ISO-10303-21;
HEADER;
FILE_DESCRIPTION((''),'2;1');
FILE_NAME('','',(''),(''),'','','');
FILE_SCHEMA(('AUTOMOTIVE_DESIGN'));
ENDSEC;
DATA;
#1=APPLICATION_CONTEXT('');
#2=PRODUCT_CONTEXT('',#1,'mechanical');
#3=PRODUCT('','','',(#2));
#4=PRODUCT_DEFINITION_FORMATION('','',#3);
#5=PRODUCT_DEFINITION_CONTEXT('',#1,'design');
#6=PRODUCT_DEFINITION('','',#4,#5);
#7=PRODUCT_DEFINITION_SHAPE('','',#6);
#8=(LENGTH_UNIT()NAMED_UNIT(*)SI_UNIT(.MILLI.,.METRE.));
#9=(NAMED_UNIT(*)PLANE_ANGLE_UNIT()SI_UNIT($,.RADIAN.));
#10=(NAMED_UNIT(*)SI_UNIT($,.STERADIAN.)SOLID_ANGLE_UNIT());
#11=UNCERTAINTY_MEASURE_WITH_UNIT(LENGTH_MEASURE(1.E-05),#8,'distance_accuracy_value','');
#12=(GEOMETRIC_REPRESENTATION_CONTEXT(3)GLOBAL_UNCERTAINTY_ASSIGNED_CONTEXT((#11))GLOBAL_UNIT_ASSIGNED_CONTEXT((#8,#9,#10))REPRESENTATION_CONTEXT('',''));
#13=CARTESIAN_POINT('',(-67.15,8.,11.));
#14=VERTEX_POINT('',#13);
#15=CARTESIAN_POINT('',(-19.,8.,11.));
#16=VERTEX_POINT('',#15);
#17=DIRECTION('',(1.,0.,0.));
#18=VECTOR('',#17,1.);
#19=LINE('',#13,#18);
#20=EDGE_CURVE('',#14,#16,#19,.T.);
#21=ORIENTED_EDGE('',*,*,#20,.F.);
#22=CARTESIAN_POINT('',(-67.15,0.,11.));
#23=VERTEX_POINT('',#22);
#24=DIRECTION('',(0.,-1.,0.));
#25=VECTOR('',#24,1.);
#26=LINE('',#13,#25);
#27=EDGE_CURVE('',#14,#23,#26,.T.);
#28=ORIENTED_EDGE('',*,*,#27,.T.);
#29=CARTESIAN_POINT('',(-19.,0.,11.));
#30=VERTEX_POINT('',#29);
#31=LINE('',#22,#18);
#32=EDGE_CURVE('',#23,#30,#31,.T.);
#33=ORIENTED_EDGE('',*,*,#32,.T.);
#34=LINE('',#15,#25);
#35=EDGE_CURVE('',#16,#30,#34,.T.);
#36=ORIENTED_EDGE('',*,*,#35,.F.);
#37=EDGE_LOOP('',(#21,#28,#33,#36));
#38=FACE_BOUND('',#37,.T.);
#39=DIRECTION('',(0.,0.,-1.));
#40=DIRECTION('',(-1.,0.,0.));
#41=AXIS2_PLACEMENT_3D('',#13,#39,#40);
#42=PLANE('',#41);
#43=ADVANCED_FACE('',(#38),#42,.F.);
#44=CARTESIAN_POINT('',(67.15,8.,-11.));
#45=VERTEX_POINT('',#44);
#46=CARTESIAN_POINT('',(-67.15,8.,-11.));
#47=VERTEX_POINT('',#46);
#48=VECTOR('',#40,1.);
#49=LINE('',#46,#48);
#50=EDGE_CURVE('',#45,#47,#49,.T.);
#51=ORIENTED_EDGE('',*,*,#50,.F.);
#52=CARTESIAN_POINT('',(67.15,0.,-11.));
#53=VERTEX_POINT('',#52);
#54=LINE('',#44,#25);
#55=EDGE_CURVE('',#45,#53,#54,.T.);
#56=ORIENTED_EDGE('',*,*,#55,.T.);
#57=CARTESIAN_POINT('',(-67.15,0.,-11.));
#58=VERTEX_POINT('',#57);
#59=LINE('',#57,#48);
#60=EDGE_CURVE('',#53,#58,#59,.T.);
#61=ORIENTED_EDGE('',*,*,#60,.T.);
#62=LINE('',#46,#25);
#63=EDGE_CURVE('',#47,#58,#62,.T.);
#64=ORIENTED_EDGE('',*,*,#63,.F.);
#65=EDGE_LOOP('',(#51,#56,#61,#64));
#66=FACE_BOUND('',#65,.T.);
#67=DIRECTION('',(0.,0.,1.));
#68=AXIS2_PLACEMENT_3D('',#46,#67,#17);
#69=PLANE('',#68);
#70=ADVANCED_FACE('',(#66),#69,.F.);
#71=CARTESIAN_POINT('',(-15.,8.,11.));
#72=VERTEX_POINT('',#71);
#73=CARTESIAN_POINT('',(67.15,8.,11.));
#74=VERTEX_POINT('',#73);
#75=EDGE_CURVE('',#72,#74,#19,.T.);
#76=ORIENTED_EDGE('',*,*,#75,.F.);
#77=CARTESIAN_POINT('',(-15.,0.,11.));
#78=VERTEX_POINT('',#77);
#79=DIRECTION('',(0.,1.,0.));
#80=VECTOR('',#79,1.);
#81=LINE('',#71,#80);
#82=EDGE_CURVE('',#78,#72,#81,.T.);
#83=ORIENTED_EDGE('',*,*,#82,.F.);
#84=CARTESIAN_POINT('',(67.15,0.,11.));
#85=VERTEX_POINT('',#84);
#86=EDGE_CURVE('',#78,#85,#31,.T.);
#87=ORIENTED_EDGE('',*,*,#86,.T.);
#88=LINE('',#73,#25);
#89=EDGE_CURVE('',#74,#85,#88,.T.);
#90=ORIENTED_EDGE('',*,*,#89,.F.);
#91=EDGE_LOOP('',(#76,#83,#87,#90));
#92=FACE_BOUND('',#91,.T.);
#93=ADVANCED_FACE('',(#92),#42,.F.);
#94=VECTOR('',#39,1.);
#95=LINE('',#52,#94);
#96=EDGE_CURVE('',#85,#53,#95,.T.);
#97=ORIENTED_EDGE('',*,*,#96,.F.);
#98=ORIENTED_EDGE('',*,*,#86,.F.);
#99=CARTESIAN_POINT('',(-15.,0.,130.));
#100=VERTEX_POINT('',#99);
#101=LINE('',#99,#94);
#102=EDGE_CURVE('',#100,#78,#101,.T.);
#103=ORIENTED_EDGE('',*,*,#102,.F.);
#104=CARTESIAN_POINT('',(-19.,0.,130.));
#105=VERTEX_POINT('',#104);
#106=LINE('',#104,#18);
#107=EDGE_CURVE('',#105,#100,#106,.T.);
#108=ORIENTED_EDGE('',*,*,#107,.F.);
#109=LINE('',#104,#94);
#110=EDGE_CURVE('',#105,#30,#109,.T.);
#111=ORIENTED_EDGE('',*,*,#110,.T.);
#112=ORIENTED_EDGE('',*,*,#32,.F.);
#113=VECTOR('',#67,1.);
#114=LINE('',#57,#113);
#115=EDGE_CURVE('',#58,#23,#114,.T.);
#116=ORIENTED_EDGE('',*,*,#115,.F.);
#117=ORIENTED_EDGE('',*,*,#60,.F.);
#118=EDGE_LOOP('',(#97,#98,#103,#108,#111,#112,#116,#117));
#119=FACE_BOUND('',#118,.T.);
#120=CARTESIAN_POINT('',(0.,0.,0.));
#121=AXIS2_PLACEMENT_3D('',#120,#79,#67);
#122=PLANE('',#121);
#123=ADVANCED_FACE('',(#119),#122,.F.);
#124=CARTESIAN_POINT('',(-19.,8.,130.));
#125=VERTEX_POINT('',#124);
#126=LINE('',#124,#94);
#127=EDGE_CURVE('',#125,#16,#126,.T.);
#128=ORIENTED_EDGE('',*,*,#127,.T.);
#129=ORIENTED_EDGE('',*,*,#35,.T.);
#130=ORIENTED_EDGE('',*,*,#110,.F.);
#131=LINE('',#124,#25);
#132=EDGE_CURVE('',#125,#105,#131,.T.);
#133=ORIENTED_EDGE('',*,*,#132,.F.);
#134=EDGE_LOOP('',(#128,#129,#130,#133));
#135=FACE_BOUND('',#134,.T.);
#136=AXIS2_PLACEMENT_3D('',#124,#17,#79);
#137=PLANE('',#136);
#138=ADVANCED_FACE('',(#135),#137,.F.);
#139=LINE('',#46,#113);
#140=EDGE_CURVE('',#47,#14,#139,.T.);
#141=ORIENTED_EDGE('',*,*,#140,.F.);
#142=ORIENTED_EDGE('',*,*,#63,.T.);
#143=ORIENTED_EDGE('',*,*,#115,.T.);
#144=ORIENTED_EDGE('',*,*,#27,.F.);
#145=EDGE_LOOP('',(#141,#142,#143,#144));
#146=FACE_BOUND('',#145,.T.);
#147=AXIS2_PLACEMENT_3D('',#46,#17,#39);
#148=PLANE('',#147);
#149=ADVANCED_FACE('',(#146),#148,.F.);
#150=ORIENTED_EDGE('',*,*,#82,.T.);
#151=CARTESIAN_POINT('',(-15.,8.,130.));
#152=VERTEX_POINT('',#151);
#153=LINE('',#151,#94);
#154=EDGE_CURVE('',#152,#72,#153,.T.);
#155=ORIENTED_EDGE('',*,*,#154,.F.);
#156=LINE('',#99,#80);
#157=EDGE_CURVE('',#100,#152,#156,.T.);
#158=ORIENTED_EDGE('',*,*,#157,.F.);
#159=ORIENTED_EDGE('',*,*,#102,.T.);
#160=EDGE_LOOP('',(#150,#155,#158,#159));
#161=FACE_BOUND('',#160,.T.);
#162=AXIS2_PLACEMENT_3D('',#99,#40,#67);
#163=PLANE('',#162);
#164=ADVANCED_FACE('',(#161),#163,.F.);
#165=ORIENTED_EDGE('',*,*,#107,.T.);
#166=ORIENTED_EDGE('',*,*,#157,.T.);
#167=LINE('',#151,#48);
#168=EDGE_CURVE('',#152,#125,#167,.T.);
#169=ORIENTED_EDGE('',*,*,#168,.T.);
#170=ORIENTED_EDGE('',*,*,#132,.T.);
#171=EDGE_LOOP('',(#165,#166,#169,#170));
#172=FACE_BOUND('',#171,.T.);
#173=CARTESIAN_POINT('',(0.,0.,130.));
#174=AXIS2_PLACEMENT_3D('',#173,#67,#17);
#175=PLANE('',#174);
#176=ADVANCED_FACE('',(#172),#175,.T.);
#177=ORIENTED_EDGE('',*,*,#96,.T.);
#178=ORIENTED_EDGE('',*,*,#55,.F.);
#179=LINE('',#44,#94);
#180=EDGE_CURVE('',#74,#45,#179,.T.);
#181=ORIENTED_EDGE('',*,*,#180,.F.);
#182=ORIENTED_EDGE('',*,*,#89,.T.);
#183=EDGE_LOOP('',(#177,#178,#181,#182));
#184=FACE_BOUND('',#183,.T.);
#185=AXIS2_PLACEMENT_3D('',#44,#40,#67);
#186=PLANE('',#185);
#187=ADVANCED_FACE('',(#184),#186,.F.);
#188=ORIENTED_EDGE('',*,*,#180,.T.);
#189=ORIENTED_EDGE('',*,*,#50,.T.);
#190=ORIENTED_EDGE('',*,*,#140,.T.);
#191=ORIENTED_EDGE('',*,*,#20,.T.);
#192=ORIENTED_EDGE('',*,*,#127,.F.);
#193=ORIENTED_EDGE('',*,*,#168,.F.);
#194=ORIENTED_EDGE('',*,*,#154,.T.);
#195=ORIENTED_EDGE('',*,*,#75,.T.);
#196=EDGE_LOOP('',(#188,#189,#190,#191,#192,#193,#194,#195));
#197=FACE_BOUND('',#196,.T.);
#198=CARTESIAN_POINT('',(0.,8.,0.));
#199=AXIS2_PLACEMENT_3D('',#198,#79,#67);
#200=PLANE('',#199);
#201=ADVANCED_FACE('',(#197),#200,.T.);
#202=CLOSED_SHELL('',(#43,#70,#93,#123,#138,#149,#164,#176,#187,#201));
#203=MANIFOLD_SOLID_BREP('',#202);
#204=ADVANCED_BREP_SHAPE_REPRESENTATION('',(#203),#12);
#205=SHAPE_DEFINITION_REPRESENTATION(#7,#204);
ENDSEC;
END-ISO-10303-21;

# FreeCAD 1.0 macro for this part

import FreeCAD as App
import Part
import Sketcher

V = App.Vector


def add_polygon(sketch, points):
    """Adds a closed chain of lines whose ends are joined by coincident constraints."""
    first, n = sketch.GeometryCount, len(points)
    for a, b in zip(points, points[1:] + points[:1]):
        sketch.addGeometry(Part.LineSegment(App.Vector(*a, 0), App.Vector(*b, 0)), False)
    for i in range(n):
        sketch.addConstraint(Sketcher.Constraint("Coincident", first + i, 2, first + (i + 1) % n, 1))

doc = App.newDocument("Part")
params = doc.addObject("Spreadsheet::Sheet", "Params")
for row, (alias, value) in enumerate([
    ("sketch1_height", "22 mm"),
    ("sketch1_width", "134.3 mm"),
    ("pad1_length", "8 mm"),
    ("sketch2_width", "4 mm"),
    ("sketch2_height", "8 mm"),
    ("pad2_length", "130 mm"),
], start=1):
    params.set(f"A{row}", alias)
    params.set(f"B{row}", "=" + value)
    params.setAlias(f"B{row}", alias)

body = doc.addObject("PartDesign::Body", "Body")

sketch1 = doc.addObject("Sketcher::SketchObject", "Sketch")
body.addObject(sketch1)
sketch1.AttachmentSupport = (doc.XZ_Plane, [""])
sketch1.MapMode = "FlatFace"
add_polygon(sketch1, [(-67, -11), (-67, 11), (67, 11), (67, -11)])
sketch1.addConstraint([
    Sketcher.Constraint("Vertical", 0),
    Sketcher.Constraint("Horizontal", 1),
    Sketcher.Constraint("Vertical", 2),
    Sketcher.Constraint("Horizontal", 3),
    Sketcher.Constraint("Symmetric", 0, 2, 2, 2, -1, 1),
    Sketcher.Constraint("DistanceY", 0, 1, 0, 2, 22.0),
    Sketcher.Constraint("DistanceX", 1, 1, 1, 2, 134.3),
])
sketch1.setExpression("Constraints[9]", "Params.sketch1_height")
sketch1.setExpression("Constraints[10]", "Params.sketch1_width")
pad1 = doc.addObject("PartDesign::Pad", "Pad")
body.addObject(pad1)
pad1.Profile = sketch1
pad1.setExpression("Length", "Params.pad1_length")
pad1.Reversed = True

sketch2 = doc.addObject("Sketcher::SketchObject", "Sketch001")
body.addObject(sketch2)
sketch2.AttachmentSupport = (doc.XY_Plane, [""])
sketch2.MapMode = "FlatFace"
add_polygon(sketch2, [(-19, 8), (-19, 0), (-15, 0), (-15, 8)])
sketch2.addConstraint([
    Sketcher.Constraint("Vertical", 0),
    Sketcher.Constraint("Horizontal", 1),
    Sketcher.Constraint("Vertical", 2),
    Sketcher.Constraint("Horizontal", 3),
    Sketcher.Constraint("PointOnObject", 0, 2, -1),
    Sketcher.Constraint("DistanceX", 1, 1, 1, 2, 4.0),
    Sketcher.Constraint("DistanceY", 0, 2, 0, 1, 8.0),
    Sketcher.Constraint("DistanceX", 0, 2, -1, 1, 19.0),
])
sketch2.setExpression("Constraints[9]", "Params.sketch2_width")
sketch2.setExpression("Constraints[10]", "Params.sketch2_height")
pad2 = doc.addObject("PartDesign::Pad", "Pad001")
body.addObject(pad2)
pad2.Profile = sketch2
pad2.setExpression("Length", "Params.pad2_length")

doc.recompute()
